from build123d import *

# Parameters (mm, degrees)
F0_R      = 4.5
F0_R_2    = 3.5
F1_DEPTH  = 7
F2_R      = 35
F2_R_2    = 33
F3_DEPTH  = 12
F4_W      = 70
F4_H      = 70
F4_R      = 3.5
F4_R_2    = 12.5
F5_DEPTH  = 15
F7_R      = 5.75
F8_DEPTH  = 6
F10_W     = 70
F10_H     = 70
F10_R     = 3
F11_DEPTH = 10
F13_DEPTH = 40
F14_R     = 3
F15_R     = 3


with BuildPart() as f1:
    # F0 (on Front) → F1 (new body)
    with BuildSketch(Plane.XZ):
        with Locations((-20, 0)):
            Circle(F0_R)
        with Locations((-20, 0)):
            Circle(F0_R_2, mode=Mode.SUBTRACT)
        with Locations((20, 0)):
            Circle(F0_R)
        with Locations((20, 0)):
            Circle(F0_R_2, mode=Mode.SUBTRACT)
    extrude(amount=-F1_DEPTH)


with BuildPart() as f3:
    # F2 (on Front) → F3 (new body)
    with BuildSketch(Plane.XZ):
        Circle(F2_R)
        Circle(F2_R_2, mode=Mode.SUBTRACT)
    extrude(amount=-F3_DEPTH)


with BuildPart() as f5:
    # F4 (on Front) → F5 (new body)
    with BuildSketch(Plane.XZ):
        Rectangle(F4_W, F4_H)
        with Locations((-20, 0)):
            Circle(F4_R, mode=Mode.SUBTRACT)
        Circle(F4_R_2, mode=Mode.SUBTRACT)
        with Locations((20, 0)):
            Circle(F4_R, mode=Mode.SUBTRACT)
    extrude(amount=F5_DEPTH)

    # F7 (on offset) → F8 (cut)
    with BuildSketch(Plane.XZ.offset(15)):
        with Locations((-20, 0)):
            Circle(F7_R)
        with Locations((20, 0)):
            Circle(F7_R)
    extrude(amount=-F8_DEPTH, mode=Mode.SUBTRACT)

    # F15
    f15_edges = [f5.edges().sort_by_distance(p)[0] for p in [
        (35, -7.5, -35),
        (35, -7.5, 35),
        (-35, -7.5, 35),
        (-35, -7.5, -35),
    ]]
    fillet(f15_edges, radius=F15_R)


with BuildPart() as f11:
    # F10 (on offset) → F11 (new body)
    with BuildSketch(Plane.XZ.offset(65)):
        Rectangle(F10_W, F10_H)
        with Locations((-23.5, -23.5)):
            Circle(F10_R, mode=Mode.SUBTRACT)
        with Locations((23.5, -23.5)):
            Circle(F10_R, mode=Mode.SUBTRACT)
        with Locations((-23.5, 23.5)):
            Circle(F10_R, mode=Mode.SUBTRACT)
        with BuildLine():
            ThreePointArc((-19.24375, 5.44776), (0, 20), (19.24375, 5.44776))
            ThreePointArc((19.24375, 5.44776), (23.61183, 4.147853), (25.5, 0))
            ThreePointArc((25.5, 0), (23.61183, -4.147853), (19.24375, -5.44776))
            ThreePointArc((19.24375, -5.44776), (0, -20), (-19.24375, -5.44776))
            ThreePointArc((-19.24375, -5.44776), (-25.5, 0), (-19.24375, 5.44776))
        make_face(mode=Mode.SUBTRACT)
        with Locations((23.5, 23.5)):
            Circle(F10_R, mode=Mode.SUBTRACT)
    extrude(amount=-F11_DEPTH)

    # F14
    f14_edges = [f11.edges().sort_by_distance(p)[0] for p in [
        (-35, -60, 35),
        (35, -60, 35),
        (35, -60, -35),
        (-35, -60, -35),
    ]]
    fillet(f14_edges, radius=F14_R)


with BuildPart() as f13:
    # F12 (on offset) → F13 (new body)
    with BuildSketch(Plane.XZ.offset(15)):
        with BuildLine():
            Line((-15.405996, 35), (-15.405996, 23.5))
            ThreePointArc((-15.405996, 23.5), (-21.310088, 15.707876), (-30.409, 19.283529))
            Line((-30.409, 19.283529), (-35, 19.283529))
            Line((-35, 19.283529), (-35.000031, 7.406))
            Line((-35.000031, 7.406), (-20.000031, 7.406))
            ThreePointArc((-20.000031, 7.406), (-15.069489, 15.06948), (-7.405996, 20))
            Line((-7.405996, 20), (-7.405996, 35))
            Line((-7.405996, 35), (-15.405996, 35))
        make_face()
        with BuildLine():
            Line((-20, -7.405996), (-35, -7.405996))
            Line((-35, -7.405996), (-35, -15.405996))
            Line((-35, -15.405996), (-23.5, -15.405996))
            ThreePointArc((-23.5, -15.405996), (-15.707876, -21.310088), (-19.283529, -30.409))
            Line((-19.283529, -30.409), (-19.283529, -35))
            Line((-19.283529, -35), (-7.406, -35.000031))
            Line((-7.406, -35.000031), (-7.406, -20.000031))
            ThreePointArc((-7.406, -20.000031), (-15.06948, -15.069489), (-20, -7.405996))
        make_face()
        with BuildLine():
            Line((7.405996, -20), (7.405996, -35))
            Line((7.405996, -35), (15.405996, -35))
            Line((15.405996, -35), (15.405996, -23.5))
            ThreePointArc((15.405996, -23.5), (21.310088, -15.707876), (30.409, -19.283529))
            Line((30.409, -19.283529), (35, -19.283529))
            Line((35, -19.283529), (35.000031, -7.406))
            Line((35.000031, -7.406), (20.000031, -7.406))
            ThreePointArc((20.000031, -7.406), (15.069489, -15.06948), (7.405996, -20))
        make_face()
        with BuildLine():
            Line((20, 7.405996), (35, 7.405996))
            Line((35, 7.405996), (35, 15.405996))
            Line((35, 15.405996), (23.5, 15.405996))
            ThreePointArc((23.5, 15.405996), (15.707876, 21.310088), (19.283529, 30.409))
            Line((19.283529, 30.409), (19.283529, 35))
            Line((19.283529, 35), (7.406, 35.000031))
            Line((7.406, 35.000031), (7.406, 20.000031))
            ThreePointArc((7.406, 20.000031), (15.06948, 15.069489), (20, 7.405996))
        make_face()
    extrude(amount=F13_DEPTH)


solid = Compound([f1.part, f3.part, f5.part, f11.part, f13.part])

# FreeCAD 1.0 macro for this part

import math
import FreeCAD as App
import Part
import Sketcher


def edges_at(feature, points):
    """Names of the edges that pass closest to the given points."""
    edges = feature.Shape.Edges
    near = lambda p: min(range(len(edges)), key=lambda i: edges[i].distToShape(Part.Vertex(*p))[0])
    return sorted({f"Edge{near(p) + 1}" for p in points})

doc = App.newDocument("Part")
body = doc.addObject("PartDesign::Body", "Body")
body.AllowCompound = True

# Sketch on XZ plane
sketch1 = body.newObject("Sketcher::SketchObject", "Sketch")
sketch1.AttachmentSupport = (doc.getObject("XZ_Plane"), [""])
sketch1.MapMode = "FlatFace"
sketch1.addGeometry(Part.Circle(App.Vector(-20, 0, 0), App.Vector(0, 0, 1), 4.5), False)
sketch1.addGeometry(Part.Circle(App.Vector(-20, 0, 0), App.Vector(0, 0, 1), 3.5), False)
sketch1.addGeometry(Part.Circle(App.Vector(20, 0, 0), App.Vector(0, 0, 1), 4.5), False)
sketch1.addGeometry(Part.Circle(App.Vector(20, 0, 0), App.Vector(0, 0, 1), 3.5), False)
sketch1.addConstraint(Sketcher.Constraint("Coincident", 1, 3, 0, 3))
sketch1.addConstraint(Sketcher.Constraint("Coincident", 3, 3, 2, 3))
sketch1.addConstraint(Sketcher.Constraint("Equal", 0, 2))
sketch1.addConstraint(Sketcher.Constraint("Equal", 1, 3))
sketch1.addConstraint(Sketcher.Constraint("Symmetric", 0, 3, 2, 3, -1, 1))
sketch1.addConstraint(Sketcher.Constraint("PointOnObject", 0, 3, -1))
sketch1.addConstraint(Sketcher.Constraint("Diameter", 0, 9.0))
sketch1.addConstraint(Sketcher.Constraint("Diameter", 1, 7.0))
sketch1.addConstraint(Sketcher.Constraint("DistanceX", 0, 3, -1, 1, 20.0))
pad1 = body.newObject("PartDesign::Pad", "Pad")
pad1.Profile = sketch1
pad1.Length = 7
pad1.Reversed = True
body2 = doc.addObject("PartDesign::Body", "Body001")

# Sketch on XZ plane
sketch2 = body2.newObject("Sketcher::SketchObject", "Sketch001")
sketch2.AttachmentSupport = (doc.getObject("XZ_Plane001"), [""])
sketch2.MapMode = "FlatFace"
sketch2.addGeometry(Part.Circle(App.Vector(0, 0, 0), App.Vector(0, 0, 1), 35), False)
sketch2.addGeometry(Part.Circle(App.Vector(0, 0, 0), App.Vector(0, 0, 1), 33), False)
sketch2.addConstraint(Sketcher.Constraint("Coincident", 0, 3, -1, 1))
sketch2.addConstraint(Sketcher.Constraint("Coincident", 1, 3, -1, 1))
sketch2.addConstraint(Sketcher.Constraint("Diameter", 0, 70.0))
sketch2.addConstraint(Sketcher.Constraint("Diameter", 1, 66.0))
pad2 = body2.newObject("PartDesign::Pad", "Pad001")
pad2.Profile = sketch2
pad2.Length = 12
pad2.Reversed = True
body3 = doc.addObject("PartDesign::Body", "Body002")

# Sketch on XZ plane
sketch3 = body3.newObject("Sketcher::SketchObject", "Sketch002")
sketch3.AttachmentSupport = (doc.getObject("XZ_Plane002"), [""])
sketch3.MapMode = "FlatFace"
sketch3.addGeometry(Part.LineSegment(App.Vector(-35, 35, 0), App.Vector(-35, -35, 0)), False)
sketch3.addGeometry(Part.LineSegment(App.Vector(-35, -35, 0), App.Vector(35, -35, 0)), False)
sketch3.addGeometry(Part.LineSegment(App.Vector(35, -35, 0), App.Vector(35, 35, 0)), False)
sketch3.addGeometry(Part.LineSegment(App.Vector(35, 35, 0), App.Vector(-35, 35, 0)), False)
sketch3.addGeometry(Part.Circle(App.Vector(-20, 0, 0), App.Vector(0, 0, 1), 3.5), False)
sketch3.addGeometry(Part.Circle(App.Vector(0, 0, 0), App.Vector(0, 0, 1), 12.5), False)
sketch3.addGeometry(Part.Circle(App.Vector(20, 0, 0), App.Vector(0, 0, 1), 3.5), False)
sketch3.addConstraint(Sketcher.Constraint("Coincident", 0, 2, 1, 1))
sketch3.addConstraint(Sketcher.Constraint("Coincident", 1, 2, 2, 1))
sketch3.addConstraint(Sketcher.Constraint("Coincident", 2, 2, 3, 1))
sketch3.addConstraint(Sketcher.Constraint("Coincident", 3, 2, 0, 1))
sketch3.addConstraint(Sketcher.Constraint("Vertical", 0))
sketch3.addConstraint(Sketcher.Constraint("Horizontal", 1))
sketch3.addConstraint(Sketcher.Constraint("Vertical", 2))
sketch3.addConstraint(Sketcher.Constraint("Horizontal", 3))
sketch3.addConstraint(Sketcher.Constraint("Coincident", 5, 3, -1, 1))
sketch3.addConstraint(Sketcher.Constraint("Equal", 4, 6))
sketch3.addConstraint(Sketcher.Constraint("Symmetric", 4, 3, 6, 3, -1, 1))
sketch3.addConstraint(Sketcher.Constraint("Symmetric", 0, 2, 2, 2, -1, 1))
sketch3.addConstraint(Sketcher.Constraint("PointOnObject", 4, 3, -1))
sketch3.addConstraint(Sketcher.Constraint("Equal", 3, 0))
sketch3.addConstraint(Sketcher.Constraint("Diameter", 4, 7.0))
sketch3.addConstraint(Sketcher.Constraint("Diameter", 5, 25.0))
sketch3.addConstraint(Sketcher.Constraint("DistanceX", 1, 1, 1, 2, 70.0))
sketch3.addConstraint(Sketcher.Constraint("DistanceX", 4, 3, -1, 1, 20.0))
pad3 = body3.newObject("PartDesign::Pad", "Pad002")
pad3.Profile = sketch3
pad3.Length = 15

# Sketch on XZ plane
sketch4 = body3.newObject("Sketcher::SketchObject", "Sketch003")
sketch4.AttachmentSupport = (doc.getObject("XZ_Plane002"), [""])
sketch4.MapMode = "FlatFace"
sketch4.AttachmentOffset = App.Placement(App.Vector(0, 0, 15), App.Rotation())
sketch4.addGeometry(Part.Circle(App.Vector(-20, 0, 0), App.Vector(0, 0, 1), 6), False)
sketch4.addGeometry(Part.Circle(App.Vector(20, 0, 0), App.Vector(0, 0, 1), 6), False)
sketch4.addConstraint(Sketcher.Constraint("Equal", 0, 1))
sketch4.addConstraint(Sketcher.Constraint("Symmetric", 0, 3, 1, 3, -1, 1))
sketch4.addConstraint(Sketcher.Constraint("PointOnObject", 0, 3, -1))
sketch4.addConstraint(Sketcher.Constraint("Diameter", 0, 11.5))
sketch4.addConstraint(Sketcher.Constraint("DistanceX", 0, 3, -1, 1, 20.0))
pocket1 = body3.newObject("PartDesign::Pocket", "Pocket")
pocket1.Profile = sketch4
pocket1.Length = 6
doc.recompute()

fillet = body3.newObject("PartDesign::Fillet", "Fillet")
fillet.Base = (pocket1, edges_at(pocket1, [
    (35, -7.5, -35),
    (35, -7.5, 35),
    (-35, -7.5, 35),
    (-35, -7.5, -35),
]))
fillet.Radius = 3
body4 = doc.addObject("PartDesign::Body", "Body003")

# Sketch on XZ plane
sketch5 = body4.newObject("Sketcher::SketchObject", "Sketch004")
sketch5.AttachmentSupport = (doc.getObject("XZ_Plane003"), [""])
sketch5.MapMode = "FlatFace"
sketch5.AttachmentOffset = App.Placement(App.Vector(0, 0, 65), App.Rotation())
sketch5.addGeometry(Part.LineSegment(App.Vector(-35, 35, 0), App.Vector(-35, -35, 0)), False)
sketch5.addGeometry(Part.LineSegment(App.Vector(-35, -35, 0), App.Vector(35, -35, 0)), False)
sketch5.addGeometry(Part.LineSegment(App.Vector(35, -35, 0), App.Vector(35, 35, 0)), False)
sketch5.addGeometry(Part.LineSegment(App.Vector(35, 35, 0), App.Vector(-35, 35, 0)), False)
sketch5.addGeometry(Part.Circle(App.Vector(-23.5, -23.5, 0), App.Vector(0, 0, 1), 3), False)
sketch5.addGeometry(Part.Circle(App.Vector(23.5, -23.5, 0), App.Vector(0, 0, 1), 3), False)
sketch5.addGeometry(Part.Circle(App.Vector(-23.5, 23.5, 0), App.Vector(0, 0, 1), 3), False)
sketch5.addGeometry(Part.ArcOfCircle(Part.Circle(App.Vector(-20, 0, 0), App.Vector(0, 0, 1), 5.5), math.radians(82), math.radians(278)), False)
sketch5.addGeometry(Part.ArcOfCircle(Part.Circle(App.Vector(0, 0, 0), App.Vector(0, 0, 1), 20), math.radians(16), math.radians(164)), False)
sketch5.addGeometry(Part.ArcOfCircle(Part.Circle(App.Vector(20, 0, 0), App.Vector(0, 0, 1), 5.5), math.radians(0), math.radians(98)), False)
sketch5.addGeometry(Part.ArcOfCircle(Part.Circle(App.Vector(20, 0, 0), App.Vector(0, 0, 1), 5.5), math.radians(-98), math.radians(0)), False)
sketch5.addGeometry(Part.ArcOfCircle(Part.Circle(App.Vector(0, 0, 0), App.Vector(0, 0, 1), 20), math.radians(-164), math.radians(-16)), False)
sketch5.addGeometry(Part.Circle(App.Vector(23.5, 23.5, 0), App.Vector(0, 0, 1), 3), False)
sketch5.addConstraint(Sketcher.Constraint("Coincident", 0, 2, 1, 1))
sketch5.addConstraint(Sketcher.Constraint("Coincident", 1, 2, 2, 1))
sketch5.addConstraint(Sketcher.Constraint("Coincident", 2, 2, 3, 1))
sketch5.addConstraint(Sketcher.Constraint("Coincident", 3, 2, 0, 1))
sketch5.addConstraint(Sketcher.Constraint("Coincident", 7, 1, 8, 2))
sketch5.addConstraint(Sketcher.Constraint("Coincident", 8, 1, 9, 2))
sketch5.addConstraint(Sketcher.Constraint("Tangent", 9, 1, 10, 2))
sketch5.addConstraint(Sketcher.Constraint("Coincident", 10, 1, 11, 2))
sketch5.addConstraint(Sketcher.Constraint("Coincident", 11, 1, 7, 2))
sketch5.addConstraint(Sketcher.Constraint("Vertical", 0))
sketch5.addConstraint(Sketcher.Constraint("Horizontal", 1))
sketch5.addConstraint(Sketcher.Constraint("Vertical", 2))
sketch5.addConstraint(Sketcher.Constraint("Horizontal", 3))
sketch5.addConstraint(Sketcher.Constraint("Coincident", 8, 3, -1, 1))
sketch5.addConstraint(Sketcher.Constraint("Coincident", 11, 3, -1, 1))
sketch5.addConstraint(Sketcher.Constraint("Equal", 4, 5))
sketch5.addConstraint(Sketcher.Constraint("Equal", 5, 6))
sketch5.addConstraint(Sketcher.Constraint("Equal", 7, 9))
sketch5.addConstraint(Sketcher.Constraint("Equal", 9, 10))
sketch5.addConstraint(Sketcher.Constraint("Equal", 8, 11))
sketch5.addConstraint(Sketcher.Constraint("Equal", 6, 12))
sketch5.addConstraint(Sketcher.Constraint("Symmetric", 5, 3, 6, 3, -1, 1))
sketch5.addConstraint(Sketcher.Constraint("Symmetric", 7, 3, 9, 3, -1, 1))
sketch5.addConstraint(Sketcher.Constraint("Symmetric", 4, 3, 12, 3, -1, 1))
sketch5.addConstraint(Sketcher.Constraint("Symmetric", 0, 2, 2, 2, -1, 1))
sketch5.addConstraint(Sketcher.Constraint("Symmetric", 4, 3, 5, 3, -2))
sketch5.addConstraint(Sketcher.Constraint("PointOnObject", 7, 3, -1))
sketch5.addConstraint(Sketcher.Constraint("PointOnObject", 9, 1, -1))
sketch5.addConstraint(Sketcher.Constraint("Equal", 3, 0))
sketch5.addConstraint(Sketcher.Constraint("Diameter", 4, 6.0))
sketch5.addConstraint(Sketcher.Constraint("Radius", 8, 20.0))
sketch5.addConstraint(Sketcher.Constraint("Radius", 7, 5.5))
sketch5.addConstraint(Sketcher.Constraint("DistanceX", 1, 1, 1, 2, 70.0))
sketch5.addConstraint(Sketcher.Constraint("DistanceX", 7, 3, -1, 1, 20.0))
sketch5.addConstraint(Sketcher.Constraint("DistanceX", 4, 3, 5, 3, 47.0))
sketch5.addConstraint(Sketcher.Constraint("DistanceY", 4, 3, 6, 3, 47.0))
pad4 = body4.newObject("PartDesign::Pad", "Pad003")
pad4.Profile = sketch5
pad4.Length = 10
pad4.Reversed = True
doc.recompute()

fillet2 = body4.newObject("PartDesign::Fillet", "Fillet001")
fillet2.Base = (pad4, edges_at(pad4, [
    (-35, -60, 35),
    (35, -60, 35),
    (35, -60, -35),
    (-35, -60, -35),
]))
fillet2.Radius = 3
body5 = doc.addObject("PartDesign::Body", "Body004")
body5.AllowCompound = True

# Sketch on XZ plane
sketch6 = body5.newObject("Sketcher::SketchObject", "Sketch005")
sketch6.AttachmentSupport = (doc.getObject("XZ_Plane004"), [""])
sketch6.MapMode = "FlatFace"
sketch6.AttachmentOffset = App.Placement(App.Vector(0, 0, 15), App.Rotation())
sketch6.addGeometry(Part.LineSegment(App.Vector(-15.4, 35, 0), App.Vector(-15.4, 23.5, 0)), False)
sketch6.addGeometry(Part.ArcOfCircle(Part.Circle(App.Vector(-23.5, 23.5, 0), App.Vector(0, 0, 1), 8.1), math.radians(-149), math.radians(0)), False)
sketch6.addGeometry(Part.LineSegment(App.Vector(-30.4, 19.3, 0), App.Vector(-35, 19.3, 0)), False)
sketch6.addGeometry(Part.LineSegment(App.Vector(-35, 19.3, 0), App.Vector(-35, 7.4, 0)), False)
sketch6.addGeometry(Part.LineSegment(App.Vector(-35, 7.4, 0), App.Vector(-20, 7.4, 0)), False)
sketch6.addGeometry(Part.ArcOfCircle(Part.Circle(App.Vector(0.1, -0.1, 0), App.Vector(0, 0, 1), 21.5), math.radians(111), math.radians(159)), False)
sketch6.addGeometry(Part.LineSegment(App.Vector(-7.4, 20, 0), App.Vector(-7.4, 35, 0)), False)
sketch6.addGeometry(Part.LineSegment(App.Vector(-7.4, 35, 0), App.Vector(-15.4, 35, 0)), False)
sketch6.addGeometry(Part.LineSegment(App.Vector(-20, -7.4, 0), App.Vector(-35, -7.4, 0)), False)
sketch6.addGeometry(Part.LineSegment(App.Vector(-35, -7.4, 0), App.Vector(-35, -15.4, 0)), False)
sketch6.addGeometry(Part.LineSegment(App.Vector(-35, -15.4, 0), App.Vector(-23.5, -15.4, 0)), False)
sketch6.addGeometry(Part.ArcOfCircle(Part.Circle(App.Vector(-23.5, -23.5, 0), App.Vector(0, 0, 1), 8.1), math.radians(-59), math.radians(90)), False)
sketch6.addGeometry(Part.LineSegment(App.Vector(-19.3, -30.4, 0), App.Vector(-19.3, -35, 0)), False)
sketch6.addGeometry(Part.LineSegment(App.Vector(-19.3, -35, 0), App.Vector(-7.4, -35, 0)), False)
sketch6.addGeometry(Part.LineSegment(App.Vector(-7.4, -35, 0), App.Vector(-7.4, -20, 0)), False)
sketch6.addGeometry(Part.ArcOfCircle(Part.Circle(App.Vector(0.1, 0.1, 0), App.Vector(0, 0, 1), 21.5), math.radians(-159), math.radians(-111)), False)
sketch6.addGeometry(Part.LineSegment(App.Vector(7.4, -20, 0), App.Vector(7.4, -35, 0)), False)
sketch6.addGeometry(Part.LineSegment(App.Vector(7.4, -35, 0), App.Vector(15.4, -35, 0)), False)
sketch6.addGeometry(Part.LineSegment(App.Vector(15.4, -35, 0), App.Vector(15.4, -23.5, 0)), False)
sketch6.addGeometry(Part.ArcOfCircle(Part.Circle(App.Vector(23.5, -23.5, 0), App.Vector(0, 0, 1), 8.1), math.radians(31), math.radians(180)), False)
sketch6.addGeometry(Part.LineSegment(App.Vector(30.4, -19.3, 0), App.Vector(35, -19.3, 0)), False)
sketch6.addGeometry(Part.LineSegment(App.Vector(35, -19.3, 0), App.Vector(35, -7.4, 0)), False)
sketch6.addGeometry(Part.LineSegment(App.Vector(35, -7.4, 0), App.Vector(20, -7.4, 0)), False)
sketch6.addGeometry(Part.ArcOfCircle(Part.Circle(App.Vector(-0.1, 0.1, 0), App.Vector(0, 0, 1), 21.5), math.radians(-69), math.radians(-21)), False)
sketch6.addGeometry(Part.LineSegment(App.Vector(20, 7.4, 0), App.Vector(35, 7.4, 0)), False)
sketch6.addGeometry(Part.LineSegment(App.Vector(35, 7.4, 0), App.Vector(35, 15.4, 0)), False)
sketch6.addGeometry(Part.LineSegment(App.Vector(35, 15.4, 0), App.Vector(23.5, 15.4, 0)), False)
sketch6.addGeometry(Part.ArcOfCircle(Part.Circle(App.Vector(23.5, 23.5, 0), App.Vector(0, 0, 1), 8.1), math.radians(121), math.radians(270)), False)
sketch6.addGeometry(Part.LineSegment(App.Vector(19.3, 30.4, 0), App.Vector(19.3, 35, 0)), False)
sketch6.addGeometry(Part.LineSegment(App.Vector(19.3, 35, 0), App.Vector(7.4, 35, 0)), False)
sketch6.addGeometry(Part.LineSegment(App.Vector(7.4, 35, 0), App.Vector(7.4, 20, 0)), False)
sketch6.addGeometry(Part.ArcOfCircle(Part.Circle(App.Vector(-0.1, -0.1, 0), App.Vector(0, 0, 1), 21.5), math.radians(21), math.radians(69)), False)
sketch6.addConstraint(Sketcher.Constraint("Tangent", 0, 2, 1, 2))
sketch6.addConstraint(Sketcher.Constraint("Coincident", 1, 1, 2, 1))
sketch6.addConstraint(Sketcher.Constraint("Coincident", 2, 2, 3, 1))
sketch6.addConstraint(Sketcher.Constraint("Coincident", 3, 2, 4, 1))
sketch6.addConstraint(Sketcher.Constraint("Coincident", 4, 2, 5, 2))
sketch6.addConstraint(Sketcher.Constraint("Coincident", 5, 1, 6, 1))
sketch6.addConstraint(Sketcher.Constraint("Coincident", 6, 2, 7, 1))
sketch6.addConstraint(Sketcher.Constraint("Coincident", 7, 2, 0, 1))
sketch6.addConstraint(Sketcher.Constraint("Coincident", 8, 2, 9, 1))
sketch6.addConstraint(Sketcher.Constraint("Coincident", 9, 2, 10, 1))
sketch6.addConstraint(Sketcher.Constraint("Tangent", 10, 2, 11, 2))
sketch6.addConstraint(Sketcher.Constraint("Coincident", 11, 1, 12, 1))
sketch6.addConstraint(Sketcher.Constraint("Coincident", 12, 2, 13, 1))
sketch6.addConstraint(Sketcher.Constraint("Coincident", 13, 2, 14, 1))
sketch6.addConstraint(Sketcher.Constraint("Coincident", 14, 2, 15, 2))
sketch6.addConstraint(Sketcher.Constraint("Coincident", 15, 1, 8, 1))
sketch6.addConstraint(Sketcher.Constraint("Coincident", 16, 2, 17, 1))
sketch6.addConstraint(Sketcher.Constraint("Coincident", 17, 2, 18, 1))
sketch6.addConstraint(Sketcher.Constraint("Tangent", 18, 2, 19, 2))
sketch6.addConstraint(Sketcher.Constraint("Coincident", 19, 1, 20, 1))
sketch6.addConstraint(Sketcher.Constraint("Coincident", 20, 2, 21, 1))
sketch6.addConstraint(Sketcher.Constraint("Coincident", 21, 2, 22, 1))
sketch6.addConstraint(Sketcher.Constraint("Coincident", 22, 2, 23, 2))
sketch6.addConstraint(Sketcher.Constraint("Coincident", 23, 1, 16, 1))
sketch6.addConstraint(Sketcher.Constraint("Coincident", 24, 2, 25, 1))
sketch6.addConstraint(Sketcher.Constraint("Coincident", 25, 2, 26, 1))
sketch6.addConstraint(Sketcher.Constraint("Tangent", 26, 2, 27, 2))
sketch6.addConstraint(Sketcher.Constraint("Coincident", 27, 1, 28, 1))
sketch6.addConstraint(Sketcher.Constraint("Coincident", 28, 2, 29, 1))
sketch6.addConstraint(Sketcher.Constraint("Coincident", 29, 2, 30, 1))
sketch6.addConstraint(Sketcher.Constraint("Coincident", 30, 2, 31, 2))
sketch6.addConstraint(Sketcher.Constraint("Coincident", 31, 1, 24, 1))
sketch6.addConstraint(Sketcher.Constraint("Vertical", 0))
sketch6.addConstraint(Sketcher.Constraint("Horizontal", 2))
sketch6.addConstraint(Sketcher.Constraint("Horizontal", 4))
sketch6.addConstraint(Sketcher.Constraint("Vertical", 6))
sketch6.addConstraint(Sketcher.Constraint("Horizontal", 7))
sketch6.addConstraint(Sketcher.Constraint("Horizontal", 8))
sketch6.addConstraint(Sketcher.Constraint("Vertical", 9))
sketch6.addConstraint(Sketcher.Constraint("Horizontal", 10))
sketch6.addConstraint(Sketcher.Constraint("Vertical", 12))
sketch6.addConstraint(Sketcher.Constraint("Vertical", 14))
sketch6.addConstraint(Sketcher.Constraint("Vertical", 16))
sketch6.addConstraint(Sketcher.Constraint("Horizontal", 17))
sketch6.addConstraint(Sketcher.Constraint("Vertical", 18))
sketch6.addConstraint(Sketcher.Constraint("Horizontal", 20))
sketch6.addConstraint(Sketcher.Constraint("Horizontal", 22))
sketch6.addConstraint(Sketcher.Constraint("Horizontal", 24))
sketch6.addConstraint(Sketcher.Constraint("Vertical", 25))
sketch6.addConstraint(Sketcher.Constraint("Horizontal", 26))
sketch6.addConstraint(Sketcher.Constraint("Vertical", 28))
sketch6.addConstraint(Sketcher.Constraint("Vertical", 30))
sketch6.addConstraint(Sketcher.Constraint("Equal", 1, 11))
sketch6.addConstraint(Sketcher.Constraint("Equal", 5, 15))
sketch6.addConstraint(Sketcher.Constraint("Equal", 11, 19))
sketch6.addConstraint(Sketcher.Constraint("Equal", 15, 23))
sketch6.addConstraint(Sketcher.Constraint("Equal", 19, 27))
sketch6.addConstraint(Sketcher.Constraint("Equal", 23, 31))
sketch6.addConstraint(Sketcher.Constraint("Symmetric", 1, 3, 19, 3, -1, 1))
sketch6.addConstraint(Sketcher.Constraint("Symmetric", 5, 3, 23, 3, -1, 1))
sketch6.addConstraint(Sketcher.Constraint("Symmetric", 11, 3, 27, 3, -1, 1))
sketch6.addConstraint(Sketcher.Constraint("Symmetric", 15, 3, 31, 3, -1, 1))
sketch6.addConstraint(Sketcher.Constraint("Symmetric", 6, 2, 16, 2, -1, 1))
sketch6.addConstraint(Sketcher.Constraint("Symmetric", 2, 2, 20, 2, -1, 1))
sketch6.addConstraint(Sketcher.Constraint("Symmetric", 3, 2, 21, 2, -1, 1))
sketch6.addConstraint(Sketcher.Constraint("Symmetric", 8, 2, 24, 2, -1, 1))
sketch6.addConstraint(Sketcher.Constraint("Symmetric", 12, 2, 28, 2, -1, 1))
sketch6.addConstraint(Sketcher.Constraint("Symmetric", 13, 2, 29, 2, -1, 1))
sketch6.addConstraint(Sketcher.Constraint("Symmetric", 11, 3, 19, 3, -2))
sketch6.addConstraint(Sketcher.Constraint("Perpendicular", 3, 13))
sketch6.addConstraint(Sketcher.Constraint("Horizontal", 12, 2, 16, 2))
sketch6.addConstraint(Sketcher.Constraint("Vertical", 2, 2, 8, 2))
sketch6.addConstraint(Sketcher.Constraint("Equal", 4, 8))
sketch6.addConstraint(Sketcher.Constraint("Equal", 26, 0))
sketch6.addConstraint(Sketcher.Constraint("Equal", 24, 6))
sketch6.addConstraint(Sketcher.Constraint("Equal", 17, 9))
sketch6.addConstraint(Sketcher.Constraint("Equal", 20, 12))
sketch6.addConstraint(Sketcher.Constraint("Equal", 6, 14))
sketch6.addConstraint(Sketcher.Constraint("Equal", 3, 13))
sketch6.addConstraint(Sketcher.Constraint("DistanceX", 4, 1, 4, 2, 15.0))
sketch6.addConstraint(Sketcher.Constraint("DistanceX", 7, 2, 7, 1, 8.0))
sketch6.addConstraint(Sketcher.Constraint("DistanceX", 10, 1, 10, 2, 11.5))
sketch6.addConstraint(Sketcher.Constraint("DistanceX", 2, 2, -1, 1, 35.0))
sketch6.addConstraint(Sketcher.Constraint("DistanceY", -1, 1, 5, 1, 20.0))
sketch6.addConstraint(Sketcher.Constraint("Radius", 5, 21.485002))
sketch6.addConstraint(Sketcher.Constraint("DistanceX", 2, 2, 2, 1, 4.591))
sketch6.addConstraint(Sketcher.Constraint("DistanceY", -1, 1, 3, 2, 7.406))
sketch6.addConstraint(Sketcher.Constraint("Radius", 1, 8.094004))
sketch6.addConstraint(Sketcher.Constraint("DistanceX", -1, 1, 5, 3, 0.12268))
pad5 = body5.newObject("PartDesign::Pad", "Pad004")
pad5.Profile = sketch6
pad5.Length = 40

doc.recompute()
